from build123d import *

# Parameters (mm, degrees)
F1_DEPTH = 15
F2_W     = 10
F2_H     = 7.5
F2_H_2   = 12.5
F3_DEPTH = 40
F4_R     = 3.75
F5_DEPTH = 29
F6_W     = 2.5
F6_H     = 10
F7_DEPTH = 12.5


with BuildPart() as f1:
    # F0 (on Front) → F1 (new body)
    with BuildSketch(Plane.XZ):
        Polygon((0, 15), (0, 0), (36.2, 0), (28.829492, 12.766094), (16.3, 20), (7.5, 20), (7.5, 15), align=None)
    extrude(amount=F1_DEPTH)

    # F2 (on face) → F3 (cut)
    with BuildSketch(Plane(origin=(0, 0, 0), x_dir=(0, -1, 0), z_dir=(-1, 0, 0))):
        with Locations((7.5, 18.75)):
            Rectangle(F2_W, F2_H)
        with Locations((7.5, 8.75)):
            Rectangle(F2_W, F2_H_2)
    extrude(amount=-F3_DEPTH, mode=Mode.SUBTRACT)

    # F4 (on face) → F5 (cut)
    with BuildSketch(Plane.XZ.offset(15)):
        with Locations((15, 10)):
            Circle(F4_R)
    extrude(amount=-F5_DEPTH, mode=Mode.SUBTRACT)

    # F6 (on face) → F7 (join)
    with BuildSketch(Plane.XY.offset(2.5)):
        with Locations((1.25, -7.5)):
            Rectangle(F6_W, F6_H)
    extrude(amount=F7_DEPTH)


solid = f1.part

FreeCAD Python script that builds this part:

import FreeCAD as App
import Part
import Sketcher
Q = App.Units.Quantity


def add_polygon(sketch, points):
    """Adds a closed chain of lines whose ends are joined by coincident constraints."""
    first, n = sketch.GeometryCount, len(points)
    for a, b in zip(points, points[1:] + points[:1]):
        sketch.addGeometry(Part.LineSegment(App.Vector(*a, 0), App.Vector(*b, 0)), False)
    for i in range(n):
        sketch.addConstraint(Sketcher.Constraint("Coincident", first + i, 2, first + (i + 1) % n, 1))

doc = App.newDocument("Part")
body = doc.addObject("PartDesign::Body", "Body")

# Sketch on XZ plane
sketch1 = body.newObject("Sketcher::SketchObject", "Sketch")
sketch1.AttachmentSupport = (doc.getObject("XZ_Plane"), [""])
sketch1.MapMode = "FlatFace"
add_polygon(sketch1, [(0, 15), (0, 0), (36, 0), (29, 13), (16, 20), (8, 20), (8, 15)])  # lines 0-6
sketch1.addConstraint([
    Sketcher.Constraint("Vertical", 0),
    Sketcher.Constraint("Horizontal", 1),
    Sketcher.Constraint("Horizontal", 4),
    Sketcher.Constraint("Vertical", 5),
    Sketcher.Constraint("Horizontal", 6),
    Sketcher.Constraint("Coincident", 0, 2, -1, 1),
    Sketcher.Constraint("DistanceY", 0, 2, 0, 1, Q("15 mm")),
    Sketcher.Constraint("DistanceY", 5, 2, 5, 1, Q("5 mm")),
    Sketcher.Constraint("Angle", 2, Q("120.000001 deg")),
    Sketcher.Constraint("Angle", 3, Q("149.999999 deg")),
    Sketcher.Constraint("DistanceX", 1, 1, 1, 2, Q("36.2 mm")),
    Sketcher.Constraint("DistanceX", 4, 2, 4, 1, Q("8.8 mm")),
    Sketcher.Constraint("DistanceX", 6, 2, 6, 1, Q("7.5 mm")),
])
pad1 = body.newObject("PartDesign::Pad", "Pad")
pad1.Profile = sketch1
pad1.Length = 15

# Sketch on YZ plane
sketch2 = body.newObject("Sketcher::SketchObject", "Sketch001")
sketch2.AttachmentSupport = (doc.getObject("YZ_Plane"), [""])
sketch2.MapMode = "FlatFace"
add_polygon(sketch2, [(-2, 22), (-2, 2), (-12, 2), (-12, 22)])  # lines 0-3
sketch2.addConstraint([
    Sketcher.Constraint("Vertical", 0),
    Sketcher.Constraint("Horizontal", 1),
    Sketcher.Constraint("Vertical", 2),
    Sketcher.Constraint("Horizontal", 3),
    Sketcher.Constraint("DistanceX", 1, 2, 1, 1, Q("10 mm")),
    Sketcher.Constraint("DistanceY", 0, 2, 0, 1, Q("20 mm")),
    Sketcher.Constraint("DistanceX", 0, 2, -1, 1, Q("2.5 mm")),
    Sketcher.Constraint("DistanceY", -1, 1, 0, 2, Q("2.5 mm")),
])
pocket1 = body.newObject("PartDesign::Pocket", "Pocket")
pocket1.Profile = sketch2
pocket1.Length = 40
pocket1.Reversed = True

# Sketch on XZ plane
sketch3 = body.newObject("Sketcher::SketchObject", "Sketch002")
sketch3.AttachmentSupport = (doc.getObject("XZ_Plane"), [""])
sketch3.MapMode = "FlatFace"
sketch3.AttachmentOffset = App.Placement(App.Vector(0, 0, 15), App.Rotation())
sketch3.addGeometry(Part.Circle(App.Vector(15, 10, 0), App.Vector(0, 0, 1), 3.8), False)
sketch3.addConstraint([
    Sketcher.Constraint("Diameter", 0, Q("7.5 mm")),
    Sketcher.Constraint("DistanceX", -1, 1, 0, 3, Q("15 mm")),
    Sketcher.Constraint("DistanceY", -1, 1, 0, 3, Q("10 mm")),
])
pocket2 = body.newObject("PartDesign::Pocket", "Pocket001")
pocket2.Profile = sketch3
pocket2.Length = 29

# Sketch on XY plane
sketch4 = body.newObject("Sketcher::SketchObject", "Sketch003")
sketch4.AttachmentSupport = (doc.getObject("XY_Plane"), [""])
sketch4.MapMode = "FlatFace"
sketch4.AttachmentOffset = App.Placement(App.Vector(0, 0, 2.5), App.Rotation())
add_polygon(sketch4, [(0, -2.5), (0, -12.5), (2.5, -12.5), (2.5, -2.5)])  # lines 0-3
sketch4.addConstraint([
    Sketcher.Constraint("Vertical", 0),
    Sketcher.Constraint("Horizontal", 1),
    Sketcher.Constraint("Vertical", 2),
    Sketcher.Constraint("Horizontal", 3),
    Sketcher.Constraint("PointOnObject", 0, 2, -2),
    Sketcher.Constraint("DistanceY", 0, 2, 0, 1, Q("10 mm")),
    Sketcher.Constraint("DistanceX", 1, 1, 1, 2, Q("2.5 mm")),
    Sketcher.Constraint("DistanceY", 0, 2, -1, 1, Q("12.5 mm")),
])
pad2 = body.newObject("PartDesign::Pad", "Pad001")
pad2.Profile = sketch4
pad2.Length = 12.5

doc.recompute()
